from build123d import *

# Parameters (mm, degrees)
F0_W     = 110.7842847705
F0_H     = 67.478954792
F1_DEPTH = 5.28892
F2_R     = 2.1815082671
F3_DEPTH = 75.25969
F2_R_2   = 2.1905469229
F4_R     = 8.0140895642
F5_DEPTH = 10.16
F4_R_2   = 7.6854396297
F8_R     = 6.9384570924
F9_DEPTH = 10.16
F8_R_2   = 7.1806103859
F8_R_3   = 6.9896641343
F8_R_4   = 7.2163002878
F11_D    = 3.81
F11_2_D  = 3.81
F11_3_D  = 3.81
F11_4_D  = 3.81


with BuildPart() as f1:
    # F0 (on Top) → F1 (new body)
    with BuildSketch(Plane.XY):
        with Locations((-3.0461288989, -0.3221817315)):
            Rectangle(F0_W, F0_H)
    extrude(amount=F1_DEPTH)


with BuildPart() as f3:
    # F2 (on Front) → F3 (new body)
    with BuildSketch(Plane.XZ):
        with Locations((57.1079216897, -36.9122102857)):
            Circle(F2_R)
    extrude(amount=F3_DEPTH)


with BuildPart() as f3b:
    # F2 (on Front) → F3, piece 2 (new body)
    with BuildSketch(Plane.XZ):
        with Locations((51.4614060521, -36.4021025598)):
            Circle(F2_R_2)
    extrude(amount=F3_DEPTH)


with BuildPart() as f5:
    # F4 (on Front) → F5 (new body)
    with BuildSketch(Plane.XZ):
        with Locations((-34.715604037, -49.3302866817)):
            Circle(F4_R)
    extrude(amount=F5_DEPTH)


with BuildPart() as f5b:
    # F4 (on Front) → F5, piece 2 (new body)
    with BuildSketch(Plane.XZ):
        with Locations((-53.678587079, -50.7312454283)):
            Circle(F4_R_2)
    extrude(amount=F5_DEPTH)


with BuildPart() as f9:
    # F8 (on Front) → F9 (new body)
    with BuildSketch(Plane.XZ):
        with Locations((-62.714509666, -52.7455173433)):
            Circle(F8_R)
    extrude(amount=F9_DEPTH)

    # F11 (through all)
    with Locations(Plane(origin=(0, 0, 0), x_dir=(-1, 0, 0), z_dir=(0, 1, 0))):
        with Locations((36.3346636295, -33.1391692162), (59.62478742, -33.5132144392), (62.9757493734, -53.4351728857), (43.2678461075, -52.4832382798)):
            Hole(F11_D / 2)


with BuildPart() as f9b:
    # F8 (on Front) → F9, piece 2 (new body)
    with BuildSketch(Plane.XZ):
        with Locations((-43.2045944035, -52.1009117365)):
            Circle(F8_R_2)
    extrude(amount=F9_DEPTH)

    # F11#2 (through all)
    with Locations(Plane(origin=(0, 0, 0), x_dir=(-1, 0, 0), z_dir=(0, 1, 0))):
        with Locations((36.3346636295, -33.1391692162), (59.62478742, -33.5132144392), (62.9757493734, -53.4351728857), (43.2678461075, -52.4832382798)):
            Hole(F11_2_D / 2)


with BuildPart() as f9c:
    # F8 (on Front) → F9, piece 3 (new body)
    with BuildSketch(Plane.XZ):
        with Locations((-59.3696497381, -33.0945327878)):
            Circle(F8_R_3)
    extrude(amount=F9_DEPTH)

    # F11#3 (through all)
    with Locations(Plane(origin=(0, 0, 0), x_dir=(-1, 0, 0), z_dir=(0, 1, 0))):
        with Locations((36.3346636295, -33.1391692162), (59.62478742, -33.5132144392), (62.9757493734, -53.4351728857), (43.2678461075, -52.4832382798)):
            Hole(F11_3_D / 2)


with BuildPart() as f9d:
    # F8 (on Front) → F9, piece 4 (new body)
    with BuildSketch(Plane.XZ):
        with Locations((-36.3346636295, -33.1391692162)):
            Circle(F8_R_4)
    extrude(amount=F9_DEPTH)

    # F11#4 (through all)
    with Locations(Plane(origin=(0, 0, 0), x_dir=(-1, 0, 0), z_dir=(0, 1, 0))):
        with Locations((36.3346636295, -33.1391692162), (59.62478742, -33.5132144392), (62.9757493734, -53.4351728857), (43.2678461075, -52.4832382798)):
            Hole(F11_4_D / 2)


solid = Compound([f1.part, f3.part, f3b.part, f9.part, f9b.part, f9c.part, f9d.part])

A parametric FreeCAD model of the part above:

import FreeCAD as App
import Part
import Sketcher

V = App.Vector
Q = App.Units.Quantity

doc = App.newDocument("Part")
body = doc.addObject("PartDesign::Body", "Body")

sketch1 = doc.addObject("Sketcher::SketchObject", "Sketch")
body.addObject(sketch1)
sketch1.AttachmentSupport = (doc.XY_Plane, [""])
sketch1.MapMode = "FlatFace"
sketch1.addGeometry([
    Part.LineSegment(V(-58.438271, 33.417296, 0), V(-58.438271, -34.061659, 0)),
    Part.LineSegment(V(-58.438271, -34.061659, 0), V(52.346013, -34.061659, 0)),
    Part.LineSegment(V(52.346013, -34.061659, 0), V(52.346013, 33.417296, 0)),
    Part.LineSegment(V(52.346013, 33.417296, 0), V(-58.438271, 33.417296, 0)),
], False)
sketch1.addConstraint([
    Sketcher.Constraint("Coincident", 0, 2, 1, 1),
    Sketcher.Constraint("Coincident", 1, 2, 2, 1),
    Sketcher.Constraint("Coincident", 2, 2, 3, 1),
    Sketcher.Constraint("Coincident", 3, 2, 0, 1),
    Sketcher.Constraint("Vertical", 0),
    Sketcher.Constraint("Horizontal", 1),
    Sketcher.Constraint("Vertical", 2),
    Sketcher.Constraint("Horizontal", 3),
    Sketcher.Constraint("DistanceX", 1, 1, 1, 2, Q("110.784285 mm")),
    Sketcher.Constraint("DistanceY", 0, 2, 0, 1, Q("67.478955 mm")),
    Sketcher.Constraint("DistanceX", 0, 2, -1, 1, Q("58.438271 mm")),
    Sketcher.Constraint("DistanceY", 0, 2, -1, 1, Q("34.061659 mm")),
])
pad1 = doc.addObject("PartDesign::Pad", "Pad")
body.addObject(pad1)
pad1.Profile = sketch1
pad1.Length = 5.28892
body2 = doc.addObject("PartDesign::Body", "Body001")

sketch2 = doc.addObject("Sketcher::SketchObject", "Sketch001")
body2.addObject(sketch2)
sketch2.AttachmentSupport = (doc.getObject("XZ_Plane001"), [""])
sketch2.MapMode = "FlatFace"
sketch2.addGeometry(Part.Circle(V(57.107922, -36.91221, 0), V(0, 0, 1), 2.181508), False)
sketch2.addConstraint([
    Sketcher.Constraint("Diameter", 0, Q("4.363017 mm")),
    Sketcher.Constraint("DistanceX", -1, 1, 0, 3, Q("57.107922 mm")),
    Sketcher.Constraint("DistanceY", 0, 3, -1, 1, Q("36.91221 mm")),
])
pad2 = doc.addObject("PartDesign::Pad", "Pad001")
body2.addObject(pad2)
pad2.Profile = sketch2
pad2.Length = 75.25969
body3 = doc.addObject("PartDesign::Body", "Body002")

sketch3 = doc.addObject("Sketcher::SketchObject", "Sketch002")
body3.addObject(sketch3)
sketch3.AttachmentSupport = (doc.getObject("XZ_Plane002"), [""])
sketch3.MapMode = "FlatFace"
sketch3.addGeometry(Part.Circle(V(51.461406, -36.402103, 0), V(0, 0, 1), 2.190547), False)
sketch3.addConstraint([
    Sketcher.Constraint("Diameter", 0, Q("4.381094 mm")),
    Sketcher.Constraint("DistanceX", -1, 1, 0, 3, Q("51.461406 mm")),
    Sketcher.Constraint("DistanceY", 0, 3, -1, 1, Q("36.402103 mm")),
])
pad3 = doc.addObject("PartDesign::Pad", "Pad002")
body3.addObject(pad3)
pad3.Profile = sketch3
pad3.Length = 75.25969
body4 = doc.addObject("PartDesign::Body", "Body003")

sketch4 = doc.addObject("Sketcher::SketchObject", "Sketch003")
body4.addObject(sketch4)
sketch4.AttachmentSupport = (doc.getObject("XZ_Plane003"), [""])
sketch4.MapMode = "FlatFace"
sketch4.addGeometry(Part.Circle(V(-34.715604, -49.330287, 0), V(0, 0, 1), 8.01409), False)
sketch4.addConstraint([
    Sketcher.Constraint("Diameter", 0, Q("16.028179 mm")),
    Sketcher.Constraint("DistanceX", 0, 3, -1, 1, Q("34.715604 mm")),
    Sketcher.Constraint("DistanceY", 0, 3, -1, 1, Q("49.330287 mm")),
])
pad4 = doc.addObject("PartDesign::Pad", "Pad003")
body4.addObject(pad4)
pad4.Profile = sketch4
pad4.Length = Q("0.4 in")
body5 = doc.addObject("PartDesign::Body", "Body004")

sketch5 = doc.addObject("Sketcher::SketchObject", "Sketch004")
body5.addObject(sketch5)
sketch5.AttachmentSupport = (doc.getObject("XZ_Plane004"), [""])
sketch5.MapMode = "FlatFace"
sketch5.addGeometry(Part.Circle(V(-53.678587, -50.731245, 0), V(0, 0, 1), 7.68544), False)
sketch5.addConstraint([
    Sketcher.Constraint("Diameter", 0, Q("15.370879 mm")),
    Sketcher.Constraint("DistanceX", 0, 3, -1, 1, Q("53.678587 mm")),
    Sketcher.Constraint("DistanceY", 0, 3, -1, 1, Q("50.731245 mm")),
])
pad5 = doc.addObject("PartDesign::Pad", "Pad004")
body5.addObject(pad5)
pad5.Profile = sketch5
pad5.Length = Q("0.4 in")
body6 = doc.addObject("PartDesign::Body", "Body005")

sketch6 = doc.addObject("Sketcher::SketchObject", "Sketch005")
body6.addObject(sketch6)
sketch6.AttachmentSupport = (doc.getObject("XZ_Plane005"), [""])
sketch6.MapMode = "FlatFace"
sketch6.addGeometry(Part.Circle(V(-62.71451, -52.745517, 0), V(0, 0, 1), 6.938457), False)
sketch6.addConstraint([
    Sketcher.Constraint("Diameter", 0, Q("13.876914 mm")),
    Sketcher.Constraint("DistanceX", 0, 3, -1, 1, Q("62.71451 mm")),
    Sketcher.Constraint("DistanceY", 0, 3, -1, 1, Q("52.745517 mm")),
])
pad6 = doc.addObject("PartDesign::Pad", "Pad005")
body6.addObject(pad6)
pad6.Profile = sketch6
pad6.Length = Q("0.4 in")

sketch7 = doc.addObject("Sketcher::SketchObject", "Sketch006")
body6.addObject(sketch7)
sketch7.AttachmentSupport = (doc.getObject("XZ_Plane005"), [""])
sketch7.MapMode = "FlatFace"
sketch7.addGeometry([
    Part.Circle(V(-36.334664, -33.139169, 0), V(0, 0, 1), 1.905),
    Part.Circle(V(-59.624787, -33.513214, 0), V(0, 0, 1), 1.905),
    Part.Circle(V(-62.975749, -53.435173, 0), V(0, 0, 1), 1.905),
    Part.Circle(V(-43.267846, -52.483238, 0), V(0, 0, 1), 1.905),
], False)
sketch7.addConstraint([
    Sketcher.Constraint("Equal", 0, 1),
    Sketcher.Constraint("Equal", 1, 2),
    Sketcher.Constraint("Equal", 2, 3),
    Sketcher.Constraint("Diameter", 0, Q("0.15 in")),
    Sketcher.Constraint("DistanceY", 0, 3, -1, 1, Q("33.139169 mm")),
    Sketcher.Constraint("DistanceX", 2, 3, -1, 1, Q("62.975749 mm")),
    Sketcher.Constraint("DistanceY", 3, 3, -1, 1, Q("52.483238 mm")),
    Sketcher.Constraint("DistanceX", 2, 3, 1, 3, Q("3.350962 mm")),
    Sketcher.Constraint("DistanceY", 2, 3, 1, 3, Q("19.921958 mm")),
    Sketcher.Constraint("DistanceX", 1, 3, 3, 3, Q("16.356941 mm")),
    Sketcher.Constraint("DistanceX", 0, 3, -1, 1, Q("36.334664 mm")),
    Sketcher.Constraint("DistanceY", 1, 3, -1, 1, Q("33.513214 mm")),
])
doc.recompute()
hole = doc.addObject("PartDesign::Hole", "Hole")
body6.addObject(hole)
hole.Profile = sketch7
hole.ThreadType = "None"
hole.Diameter = Q("0.15 in")
hole.DepthType = "ThroughAll"
hole.Reversed = True
body7 = doc.addObject("PartDesign::Body", "Body006")

sketch8 = doc.addObject("Sketcher::SketchObject", "Sketch007")
body7.addObject(sketch8)
sketch8.AttachmentSupport = (doc.getObject("XZ_Plane006"), [""])
sketch8.MapMode = "FlatFace"
sketch8.addGeometry(Part.Circle(V(-43.204594, -52.100912, 0), V(0, 0, 1), 7.18061), False)
sketch8.addConstraint([
    Sketcher.Constraint("Diameter", 0, Q("14.361221 mm")),
    Sketcher.Constraint("DistanceY", 0, 3, -1, 1, Q("52.100912 mm")),
    Sketcher.Constraint("DistanceX", 0, 3, -1, 1, Q("43.204594 mm")),
])
pad7 = doc.addObject("PartDesign::Pad", "Pad006")
body7.addObject(pad7)
pad7.Profile = sketch8
pad7.Length = Q("0.4 in")

sketch9 = doc.addObject("Sketcher::SketchObject", "Sketch008")
body7.addObject(sketch9)
sketch9.AttachmentSupport = (doc.getObject("XZ_Plane006"), [""])
sketch9.MapMode = "FlatFace"
sketch9.addGeometry([
    Part.Circle(V(-36.334664, -33.139169, 0), V(0, 0, 1), 1.905),
    Part.Circle(V(-59.624787, -33.513214, 0), V(0, 0, 1), 1.905),
    Part.Circle(V(-62.975749, -53.435173, 0), V(0, 0, 1), 1.905),
    Part.Circle(V(-43.267846, -52.483238, 0), V(0, 0, 1), 1.905),
], False)
sketch9.addConstraint([
    Sketcher.Constraint("Equal", 0, 1),
    Sketcher.Constraint("Equal", 1, 2),
    Sketcher.Constraint("Equal", 2, 3),
    Sketcher.Constraint("Diameter", 0, Q("0.15 in")),
    Sketcher.Constraint("DistanceY", 0, 3, -1, 1, Q("33.139169 mm")),
    Sketcher.Constraint("DistanceX", 2, 3, -1, 1, Q("62.975749 mm")),
    Sketcher.Constraint("DistanceY", 3, 3, -1, 1, Q("52.483238 mm")),
    Sketcher.Constraint("DistanceX", 2, 3, 1, 3, Q("3.350962 mm")),
    Sketcher.Constraint("DistanceY", 2, 3, 1, 3, Q("19.921958 mm")),
    Sketcher.Constraint("DistanceX", 1, 3, 3, 3, Q("16.356941 mm")),
    Sketcher.Constraint("DistanceX", 0, 3, -1, 1, Q("36.334664 mm")),
    Sketcher.Constraint("DistanceY", 1, 3, -1, 1, Q("33.513214 mm")),
])
doc.recompute()
hole2 = doc.addObject("PartDesign::Hole", "Hole001")
body7.addObject(hole2)
hole2.Profile = sketch9
hole2.ThreadType = "None"
hole2.Diameter = Q("0.15 in")
hole2.DepthType = "ThroughAll"
hole2.Reversed = True
body8 = doc.addObject("PartDesign::Body", "Body007")

sketch10 = doc.addObject("Sketcher::SketchObject", "Sketch009")
body8.addObject(sketch10)
sketch10.AttachmentSupport = (doc.getObject("XZ_Plane007"), [""])
sketch10.MapMode = "FlatFace"
sketch10.addGeometry(Part.Circle(V(-59.36965, -33.094533, 0), V(0, 0, 1), 6.989664), False)
sketch10.addConstraint([
    Sketcher.Constraint("Diameter", 0, Q("13.979328 mm")),
    Sketcher.Constraint("DistanceX", 0, 3, -1, 1, Q("59.36965 mm")),
    Sketcher.Constraint("DistanceY", 0, 3, -1, 1, Q("33.094533 mm")),
])
pad8 = doc.addObject("PartDesign::Pad", "Pad007")
body8.addObject(pad8)
pad8.Profile = sketch10
pad8.Length = Q("0.4 in")

sketch11 = doc.addObject("Sketcher::SketchObject", "Sketch010")
body8.addObject(sketch11)
sketch11.AttachmentSupport = (doc.getObject("XZ_Plane007"), [""])
sketch11.MapMode = "FlatFace"
sketch11.addGeometry([
    Part.Circle(V(-36.334664, -33.139169, 0), V(0, 0, 1), 1.905),
    Part.Circle(V(-59.624787, -33.513214, 0), V(0, 0, 1), 1.905),
    Part.Circle(V(-62.975749, -53.435173, 0), V(0, 0, 1), 1.905),
    Part.Circle(V(-43.267846, -52.483238, 0), V(0, 0, 1), 1.905),
], False)
sketch11.addConstraint([
    Sketcher.Constraint("Equal", 0, 1),
    Sketcher.Constraint("Equal", 1, 2),
    Sketcher.Constraint("Equal", 2, 3),
    Sketcher.Constraint("Diameter", 0, Q("0.15 in")),
    Sketcher.Constraint("DistanceY", 0, 3, -1, 1, Q("33.139169 mm")),
    Sketcher.Constraint("DistanceX", 2, 3, -1, 1, Q("62.975749 mm")),
    Sketcher.Constraint("DistanceY", 3, 3, -1, 1, Q("52.483238 mm")),
    Sketcher.Constraint("DistanceX", 2, 3, 1, 3, Q("3.350962 mm")),
    Sketcher.Constraint("DistanceY", 2, 3, 1, 3, Q("19.921958 mm")),
    Sketcher.Constraint("DistanceX", 1, 3, 3, 3, Q("16.356941 mm")),
    Sketcher.Constraint("DistanceX", 0, 3, -1, 1, Q("36.334664 mm")),
    Sketcher.Constraint("DistanceY", 1, 3, -1, 1, Q("33.513214 mm")),
])
doc.recompute()
hole3 = doc.addObject("PartDesign::Hole", "Hole002")
body8.addObject(hole3)
hole3.Profile = sketch11
hole3.ThreadType = "None"
hole3.Diameter = Q("0.15 in")
hole3.DepthType = "ThroughAll"
hole3.Reversed = True
body9 = doc.addObject("PartDesign::Body", "Body008")

sketch12 = doc.addObject("Sketcher::SketchObject", "Sketch011")
body9.addObject(sketch12)
sketch12.AttachmentSupport = (doc.getObject("XZ_Plane008"), [""])
sketch12.MapMode = "FlatFace"
sketch12.addGeometry(Part.Circle(V(-36.334664, -33.139169, 0), V(0, 0, 1), 7.2163), False)
sketch12.addConstraint([
    Sketcher.Constraint("Diameter", 0, Q("14.432601 mm")),
    Sketcher.Constraint("DistanceY", 0, 3, -1, 1, Q("33.139169 mm")),
    Sketcher.Constraint("DistanceX", 0, 3, -1, 1, Q("36.334664 mm")),
])
pad9 = doc.addObject("PartDesign::Pad", "Pad008")
body9.addObject(pad9)
pad9.Profile = sketch12
pad9.Length = Q("0.4 in")

sketch13 = doc.addObject("Sketcher::SketchObject", "Sketch012")
body9.addObject(sketch13)
sketch13.AttachmentSupport = (doc.getObject("XZ_Plane008"), [""])
sketch13.MapMode = "FlatFace"
sketch13.addGeometry([
    Part.Circle(V(-36.334664, -33.139169, 0), V(0, 0, 1), 1.905),
    Part.Circle(V(-59.624787, -33.513214, 0), V(0, 0, 1), 1.905),
    Part.Circle(V(-62.975749, -53.435173, 0), V(0, 0, 1), 1.905),
    Part.Circle(V(-43.267846, -52.483238, 0), V(0, 0, 1), 1.905),
], False)
sketch13.addConstraint([
    Sketcher.Constraint("Equal", 0, 1),
    Sketcher.Constraint("Equal", 1, 2),
    Sketcher.Constraint("Equal", 2, 3),
    Sketcher.Constraint("Diameter", 0, Q("0.15 in")),
    Sketcher.Constraint("DistanceY", 0, 3, -1, 1, Q("33.139169 mm")),
    Sketcher.Constraint("DistanceX", 2, 3, -1, 1, Q("62.975749 mm")),
    Sketcher.Constraint("DistanceY", 3, 3, -1, 1, Q("52.483238 mm")),
    Sketcher.Constraint("DistanceX", 2, 3, 1, 3, Q("3.350962 mm")),
    Sketcher.Constraint("DistanceY", 2, 3, 1, 3, Q("19.921958 mm")),
    Sketcher.Constraint("DistanceX", 1, 3, 3, 3, Q("16.356941 mm")),
    Sketcher.Constraint("DistanceX", 0, 3, -1, 1, Q("36.334664 mm")),
    Sketcher.Constraint("DistanceY", 1, 3, -1, 1, Q("33.513214 mm")),
])
doc.recompute()
hole4 = doc.addObject("PartDesign::Hole", "Hole003")
body9.addObject(hole4)
hole4.Profile = sketch13
hole4.ThreadType = "None"
hole4.Diameter = Q("0.15 in")
hole4.DepthType = "ThroughAll"
hole4.Reversed = True
body4.Visibility = False
body5.Visibility = False

doc.recompute()
